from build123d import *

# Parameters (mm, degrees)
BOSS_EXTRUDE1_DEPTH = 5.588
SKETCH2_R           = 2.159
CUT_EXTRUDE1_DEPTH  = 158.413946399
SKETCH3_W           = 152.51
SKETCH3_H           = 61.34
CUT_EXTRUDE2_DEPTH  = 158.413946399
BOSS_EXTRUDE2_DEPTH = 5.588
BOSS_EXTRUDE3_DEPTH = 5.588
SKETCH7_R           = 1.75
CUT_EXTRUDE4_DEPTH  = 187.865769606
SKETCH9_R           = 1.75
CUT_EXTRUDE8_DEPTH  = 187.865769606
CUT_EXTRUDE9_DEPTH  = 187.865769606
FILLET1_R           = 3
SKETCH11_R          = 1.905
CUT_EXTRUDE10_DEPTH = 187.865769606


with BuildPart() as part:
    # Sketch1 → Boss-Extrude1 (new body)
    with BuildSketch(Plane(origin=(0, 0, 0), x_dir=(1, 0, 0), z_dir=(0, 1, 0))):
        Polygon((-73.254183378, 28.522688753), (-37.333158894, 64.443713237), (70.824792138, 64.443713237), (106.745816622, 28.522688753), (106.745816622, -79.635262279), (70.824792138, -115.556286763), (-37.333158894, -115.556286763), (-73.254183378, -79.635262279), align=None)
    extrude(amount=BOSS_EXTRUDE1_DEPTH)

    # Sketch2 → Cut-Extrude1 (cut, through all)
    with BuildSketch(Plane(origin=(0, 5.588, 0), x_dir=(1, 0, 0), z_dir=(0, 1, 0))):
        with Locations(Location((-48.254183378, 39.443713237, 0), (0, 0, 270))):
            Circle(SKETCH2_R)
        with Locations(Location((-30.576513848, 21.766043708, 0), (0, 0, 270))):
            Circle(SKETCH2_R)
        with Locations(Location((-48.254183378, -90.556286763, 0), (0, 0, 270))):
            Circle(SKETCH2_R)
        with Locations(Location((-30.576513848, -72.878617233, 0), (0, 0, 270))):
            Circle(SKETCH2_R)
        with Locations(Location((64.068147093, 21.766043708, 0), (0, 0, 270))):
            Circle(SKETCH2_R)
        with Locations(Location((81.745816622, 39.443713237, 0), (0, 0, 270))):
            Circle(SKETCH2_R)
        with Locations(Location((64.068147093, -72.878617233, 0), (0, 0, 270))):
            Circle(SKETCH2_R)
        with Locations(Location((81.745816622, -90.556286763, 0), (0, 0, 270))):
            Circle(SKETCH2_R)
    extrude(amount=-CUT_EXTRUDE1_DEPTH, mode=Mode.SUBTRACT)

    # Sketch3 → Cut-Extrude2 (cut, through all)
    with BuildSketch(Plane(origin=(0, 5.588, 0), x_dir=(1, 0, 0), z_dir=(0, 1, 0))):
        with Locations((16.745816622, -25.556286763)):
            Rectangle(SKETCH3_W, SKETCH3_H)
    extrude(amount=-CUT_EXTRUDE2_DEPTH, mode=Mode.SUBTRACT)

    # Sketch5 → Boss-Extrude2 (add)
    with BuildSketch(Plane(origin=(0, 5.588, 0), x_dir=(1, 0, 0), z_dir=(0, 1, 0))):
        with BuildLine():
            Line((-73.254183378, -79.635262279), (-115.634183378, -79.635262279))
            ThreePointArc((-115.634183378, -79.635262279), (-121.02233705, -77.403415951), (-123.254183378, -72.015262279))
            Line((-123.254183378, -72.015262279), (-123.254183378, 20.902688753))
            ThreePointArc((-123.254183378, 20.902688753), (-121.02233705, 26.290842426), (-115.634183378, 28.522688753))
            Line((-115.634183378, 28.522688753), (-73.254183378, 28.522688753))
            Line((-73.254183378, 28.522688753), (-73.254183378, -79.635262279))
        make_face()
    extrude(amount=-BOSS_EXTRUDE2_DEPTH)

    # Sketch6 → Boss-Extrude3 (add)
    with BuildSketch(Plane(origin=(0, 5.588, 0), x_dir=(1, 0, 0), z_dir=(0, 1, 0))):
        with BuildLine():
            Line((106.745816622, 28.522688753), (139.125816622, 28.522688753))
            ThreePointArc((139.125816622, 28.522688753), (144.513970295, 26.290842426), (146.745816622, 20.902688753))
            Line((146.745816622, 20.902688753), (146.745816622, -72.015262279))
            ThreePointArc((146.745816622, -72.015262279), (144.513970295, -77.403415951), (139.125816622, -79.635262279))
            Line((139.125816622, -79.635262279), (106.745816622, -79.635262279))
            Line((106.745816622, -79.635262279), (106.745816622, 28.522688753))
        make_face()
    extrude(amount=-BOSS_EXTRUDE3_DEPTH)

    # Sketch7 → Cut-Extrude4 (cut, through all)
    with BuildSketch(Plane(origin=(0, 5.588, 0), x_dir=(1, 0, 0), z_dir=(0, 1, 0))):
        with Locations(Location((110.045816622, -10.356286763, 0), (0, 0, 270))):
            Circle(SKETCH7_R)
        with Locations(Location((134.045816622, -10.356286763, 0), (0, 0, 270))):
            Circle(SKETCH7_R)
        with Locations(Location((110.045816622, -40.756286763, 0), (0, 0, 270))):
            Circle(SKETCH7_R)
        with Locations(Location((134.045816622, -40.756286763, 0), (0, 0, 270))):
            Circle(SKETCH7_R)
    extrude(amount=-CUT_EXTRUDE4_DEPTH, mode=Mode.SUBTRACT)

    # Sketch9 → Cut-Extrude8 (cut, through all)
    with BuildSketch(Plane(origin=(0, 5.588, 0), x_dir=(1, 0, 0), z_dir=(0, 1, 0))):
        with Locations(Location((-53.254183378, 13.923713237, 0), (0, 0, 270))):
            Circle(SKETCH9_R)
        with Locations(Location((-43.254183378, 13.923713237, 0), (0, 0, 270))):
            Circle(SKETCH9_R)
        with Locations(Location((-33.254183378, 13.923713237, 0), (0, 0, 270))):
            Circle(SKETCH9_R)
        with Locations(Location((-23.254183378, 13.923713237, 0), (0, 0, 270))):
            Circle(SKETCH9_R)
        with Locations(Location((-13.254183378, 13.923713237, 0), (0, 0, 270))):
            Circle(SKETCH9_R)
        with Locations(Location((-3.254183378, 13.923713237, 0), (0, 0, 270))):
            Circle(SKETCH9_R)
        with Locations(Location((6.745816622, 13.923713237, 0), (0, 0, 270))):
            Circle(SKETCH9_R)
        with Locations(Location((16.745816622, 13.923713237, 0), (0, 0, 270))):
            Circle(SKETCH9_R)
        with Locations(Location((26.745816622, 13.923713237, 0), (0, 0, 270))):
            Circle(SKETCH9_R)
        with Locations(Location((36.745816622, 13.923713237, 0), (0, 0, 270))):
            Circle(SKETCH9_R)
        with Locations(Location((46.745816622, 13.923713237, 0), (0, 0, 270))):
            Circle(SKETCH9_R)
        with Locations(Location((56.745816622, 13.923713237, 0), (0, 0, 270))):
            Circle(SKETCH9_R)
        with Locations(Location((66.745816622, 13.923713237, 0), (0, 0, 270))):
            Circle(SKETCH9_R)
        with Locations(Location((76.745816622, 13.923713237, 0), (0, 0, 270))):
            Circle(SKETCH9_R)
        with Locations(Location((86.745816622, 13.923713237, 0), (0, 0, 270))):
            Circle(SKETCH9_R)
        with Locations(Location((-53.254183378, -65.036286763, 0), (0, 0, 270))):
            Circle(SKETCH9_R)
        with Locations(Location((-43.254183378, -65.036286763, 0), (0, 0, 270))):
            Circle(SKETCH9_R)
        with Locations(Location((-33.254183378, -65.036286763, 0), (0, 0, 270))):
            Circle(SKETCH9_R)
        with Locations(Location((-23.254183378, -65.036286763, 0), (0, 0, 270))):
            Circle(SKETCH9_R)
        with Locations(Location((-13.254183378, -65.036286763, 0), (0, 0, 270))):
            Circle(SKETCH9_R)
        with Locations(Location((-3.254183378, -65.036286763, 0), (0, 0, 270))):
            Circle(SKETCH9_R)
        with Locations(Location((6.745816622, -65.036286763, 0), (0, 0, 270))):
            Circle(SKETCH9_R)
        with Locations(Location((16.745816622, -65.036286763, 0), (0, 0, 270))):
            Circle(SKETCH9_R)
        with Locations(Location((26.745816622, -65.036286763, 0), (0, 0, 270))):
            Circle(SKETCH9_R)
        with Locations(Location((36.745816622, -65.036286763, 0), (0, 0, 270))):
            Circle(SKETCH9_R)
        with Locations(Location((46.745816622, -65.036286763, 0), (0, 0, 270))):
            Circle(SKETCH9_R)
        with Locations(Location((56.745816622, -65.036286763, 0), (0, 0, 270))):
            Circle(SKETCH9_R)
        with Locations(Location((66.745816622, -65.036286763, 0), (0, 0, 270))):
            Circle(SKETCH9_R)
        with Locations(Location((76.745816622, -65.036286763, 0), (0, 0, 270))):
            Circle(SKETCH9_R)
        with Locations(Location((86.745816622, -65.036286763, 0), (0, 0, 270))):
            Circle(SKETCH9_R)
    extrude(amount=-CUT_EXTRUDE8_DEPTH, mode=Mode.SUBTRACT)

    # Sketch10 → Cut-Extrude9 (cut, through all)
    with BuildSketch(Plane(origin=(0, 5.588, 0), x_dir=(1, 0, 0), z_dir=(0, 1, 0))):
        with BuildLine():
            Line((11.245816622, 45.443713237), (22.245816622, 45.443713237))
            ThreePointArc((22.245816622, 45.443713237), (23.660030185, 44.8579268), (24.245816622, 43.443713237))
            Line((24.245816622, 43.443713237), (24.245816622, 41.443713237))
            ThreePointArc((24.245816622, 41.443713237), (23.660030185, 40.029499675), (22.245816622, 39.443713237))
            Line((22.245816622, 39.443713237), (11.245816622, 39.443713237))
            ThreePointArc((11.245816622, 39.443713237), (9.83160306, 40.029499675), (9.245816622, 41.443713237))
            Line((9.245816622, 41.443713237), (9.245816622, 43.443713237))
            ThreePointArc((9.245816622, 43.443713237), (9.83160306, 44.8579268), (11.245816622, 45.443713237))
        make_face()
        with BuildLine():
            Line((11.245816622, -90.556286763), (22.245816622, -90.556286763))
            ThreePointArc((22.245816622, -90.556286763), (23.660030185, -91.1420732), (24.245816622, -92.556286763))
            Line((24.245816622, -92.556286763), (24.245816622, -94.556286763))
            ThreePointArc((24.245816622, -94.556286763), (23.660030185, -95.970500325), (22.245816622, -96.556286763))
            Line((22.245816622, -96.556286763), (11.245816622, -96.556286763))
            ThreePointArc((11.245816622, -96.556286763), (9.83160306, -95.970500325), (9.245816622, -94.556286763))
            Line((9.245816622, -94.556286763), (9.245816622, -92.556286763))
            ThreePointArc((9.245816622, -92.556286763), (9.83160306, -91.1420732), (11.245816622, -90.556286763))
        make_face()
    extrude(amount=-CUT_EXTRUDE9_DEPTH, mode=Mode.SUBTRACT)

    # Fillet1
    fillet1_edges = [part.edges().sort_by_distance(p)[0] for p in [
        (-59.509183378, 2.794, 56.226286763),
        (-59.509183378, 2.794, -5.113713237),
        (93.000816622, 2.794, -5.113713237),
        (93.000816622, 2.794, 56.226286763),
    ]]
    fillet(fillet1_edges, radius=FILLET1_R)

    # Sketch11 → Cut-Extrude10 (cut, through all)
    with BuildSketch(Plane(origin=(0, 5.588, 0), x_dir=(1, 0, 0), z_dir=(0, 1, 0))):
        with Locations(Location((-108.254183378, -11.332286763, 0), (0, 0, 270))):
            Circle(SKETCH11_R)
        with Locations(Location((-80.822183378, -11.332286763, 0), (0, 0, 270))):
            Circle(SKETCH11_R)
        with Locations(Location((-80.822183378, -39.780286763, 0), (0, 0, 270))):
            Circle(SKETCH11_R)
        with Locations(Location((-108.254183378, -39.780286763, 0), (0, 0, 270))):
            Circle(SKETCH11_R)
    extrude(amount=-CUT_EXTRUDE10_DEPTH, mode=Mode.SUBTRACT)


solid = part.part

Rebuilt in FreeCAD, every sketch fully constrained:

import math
import FreeCAD as App
import Part
import Sketcher

V = App.Vector
Q = App.Units.Quantity


def edges_at(feature, points):
    """Names of the edges that pass closest to the given points."""
    edges = feature.Shape.Edges
    near = lambda p: min(range(len(edges)), key=lambda i: edges[i].distToShape(Part.Vertex(*p))[0])
    return sorted({f"Edge{near(p) + 1}" for p in points})

doc = App.newDocument("Part")
body = doc.addObject("PartDesign::Body", "Body")

# Sketch on XZ plane
sketch1 = body.newObject("Sketcher::SketchObject", "Sketch")
sketch1.AttachmentSupport = (doc.getObject("XZ_Plane"), [""])
sketch1.MapMode = "FlatFace"
sketch1.addGeometry([
    Part.LineSegment(V(-37, -64, 0), V(-73, -29, 0)),  # 0
    Part.LineSegment(V(-73, -29, 0), V(-73, 80, 0)),  # 1
    Part.LineSegment(V(-73, 80, 0), V(-37, 116, 0)),  # 2
    Part.LineSegment(V(-37, 116, 0), V(71, 116, 0)),  # 3
    Part.LineSegment(V(71, 116, 0), V(107, 80, 0)),  # 4
    Part.LineSegment(V(107, 80, 0), V(107, -29, 0)),  # 5
    Part.LineSegment(V(107, -29, 0), V(71, -64, 0)),  # 6
    Part.LineSegment(V(71, -64, 0), V(-37, -64, 0)),  # 7
], False)
sketch1.addConstraint([
    Sketcher.Constraint("Coincident", 0, 2, 1, 1),
    Sketcher.Constraint("Coincident", 1, 2, 2, 1),
    Sketcher.Constraint("Coincident", 2, 2, 3, 1),
    Sketcher.Constraint("Coincident", 3, 2, 4, 1),
    Sketcher.Constraint("Coincident", 4, 2, 5, 1),
    Sketcher.Constraint("Coincident", 5, 2, 6, 1),
    Sketcher.Constraint("Coincident", 6, 2, 7, 1),
    Sketcher.Constraint("Coincident", 7, 2, 0, 1),
    Sketcher.Constraint("Vertical", 1),
    Sketcher.Constraint("Horizontal", 3),
    Sketcher.Constraint("Vertical", 5),
    Sketcher.Constraint("Horizontal", 7),
    Sketcher.Constraint("Perpendicular", 0, 2),
    Sketcher.Constraint("Perpendicular", 2, 4),
    Sketcher.Constraint("Perpendicular", 4, 6),
    Sketcher.Constraint("Horizontal", 1, 2, 4, 2),
    Sketcher.Constraint("Horizontal", 0, 2, 5, 2),
    Sketcher.Constraint("Vertical", 3, 2, 6, 2),
    Sketcher.Constraint("Vertical", 2, 2, 7, 2),
    Sketcher.Constraint("Equal", 7, 1),
    Sketcher.Constraint("DistanceX", 1, 2, 4, 2, Q("180 mm")),
    Sketcher.Constraint("Distance", 0, Q("50.8 mm")),
    Sketcher.Constraint("DistanceY", 0, 2, -1, 1, Q("28.522689 mm")),
    Sketcher.Constraint("DistanceX", 2, 2, -1, 1, Q("37.333159 mm")),
])
pad1 = body.newObject("PartDesign::Pad", "Pad")
pad1.Profile = sketch1
pad1.Length = 5.588
pad1.Reversed = True

# Sketch on XZ plane
sketch2 = body.newObject("Sketcher::SketchObject", "Sketch001")
sketch2.AttachmentSupport = (doc.getObject("XZ_Plane"), [""])
sketch2.MapMode = "FlatFace"
sketch2.AttachmentOffset = App.Placement(V(0, 0, -5.588), App.Rotation())
sketch2.addGeometry([
    Part.Circle(V(-48.3, -39.4, 0), V(0, 0, 1), 2.2),  # 0
    Part.Circle(V(-30.6, -21.8, 0), V(0, 0, 1), 2.2),  # 1
    Part.Circle(V(-48.3, 90.6, 0), V(0, 0, 1), 2.2),  # 2
    Part.Circle(V(-30.6, 72.9, 0), V(0, 0, 1), 2.2),  # 3
    Part.Circle(V(64.1, -21.8, 0), V(0, 0, 1), 2.2),  # 4
    Part.Circle(V(81.7, -39.4, 0), V(0, 0, 1), 2.2),  # 5
    Part.Circle(V(64.1, 72.9, 0), V(0, 0, 1), 2.2),  # 6
    Part.Circle(V(81.7, 90.6, 0), V(0, 0, 1), 2.2),  # 7
], False)
sketch2.addConstraint([
    Sketcher.Constraint("Equal", 0, 1),
    Sketcher.Constraint("Equal", 1, 2),
    Sketcher.Constraint("Equal", 2, 3),
    Sketcher.Constraint("Equal", 3, 4),
    Sketcher.Constraint("Equal", 4, 5),
    Sketcher.Constraint("Equal", 5, 6),
    Sketcher.Constraint("Equal", 6, 7),
    Sketcher.Constraint("Horizontal", 1, 3, 4, 3),
    Sketcher.Constraint("Horizontal", 0, 3, 5, 3),
    Sketcher.Constraint("Horizontal", 3, 3, 6, 3),
    Sketcher.Constraint("Horizontal", 2, 3, 7, 3),
    Sketcher.Constraint("Vertical", 0, 3, 2, 3),
    Sketcher.Constraint("Vertical", 1, 3, 3, 3),
    Sketcher.Constraint("Vertical", 4, 3, 6, 3),
    Sketcher.Constraint("Vertical", 5, 3, 7, 3),
    Sketcher.Constraint("Diameter", 0, Q("4.318 mm")),
    Sketcher.Constraint("DistanceY", 0, 3, 2, 3, Q("130 mm")),
    Sketcher.Constraint("DistanceX", 0, 3, 5, 3, Q("130 mm")),
    Sketcher.Constraint("DistanceX", 0, 3, 1, 3, Q("17.67767 mm")),
    Sketcher.Constraint("DistanceY", 0, 3, 1, 3, Q("17.67767 mm")),
    Sketcher.Constraint("DistanceY", 3, 3, 2, 3, Q("17.67767 mm")),
    Sketcher.Constraint("DistanceX", 1, 3, 4, 3, Q("94.644661 mm")),
    Sketcher.Constraint("DistanceX", 0, 3, -1, 1, Q("48.254183 mm")),
    Sketcher.Constraint("DistanceY", 0, 3, -1, 1, Q("39.443713 mm")),
])
pocket1 = body.newObject("PartDesign::Pocket", "Pocket")
pocket1.Profile = sketch2
pocket1.Type = "ThroughAll"
pocket1.Reversed = True

# Sketch on XZ plane
sketch3 = body.newObject("Sketcher::SketchObject", "Sketch002")
sketch3.AttachmentSupport = (doc.getObject("XZ_Plane"), [""])
sketch3.MapMode = "FlatFace"
sketch3.AttachmentOffset = App.Placement(V(0, 0, -5.588), App.Rotation())
sketch3.addGeometry([
    Part.LineSegment(V(-60, -5, 0), V(-60, 56, 0)),
    Part.LineSegment(V(-60, 56, 0), V(93, 56, 0)),
    Part.LineSegment(V(93, 56, 0), V(93, -5, 0)),
    Part.LineSegment(V(93, -5, 0), V(-60, -5, 0)),
], False)
sketch3.addConstraint([
    Sketcher.Constraint("Coincident", 0, 2, 1, 1),
    Sketcher.Constraint("Coincident", 1, 2, 2, 1),
    Sketcher.Constraint("Coincident", 2, 2, 3, 1),
    Sketcher.Constraint("Coincident", 3, 2, 0, 1),
    Sketcher.Constraint("Vertical", 0),
    Sketcher.Constraint("Horizontal", 1),
    Sketcher.Constraint("Vertical", 2),
    Sketcher.Constraint("Horizontal", 3),
    Sketcher.Constraint("DistanceX", 1, 1, 1, 2, Q("152.51 mm")),
    Sketcher.Constraint("DistanceY", 0, 1, 0, 2, Q("61.34 mm")),
    Sketcher.Constraint("DistanceX", 0, 2, -1, 1, Q("59.509183 mm")),
    Sketcher.Constraint("DistanceY", -1, 1, 0, 2, Q("56.226287 mm")),
])
pocket2 = body.newObject("PartDesign::Pocket", "Pocket001")
pocket2.Profile = sketch3
pocket2.Type = "ThroughAll"
pocket2.Reversed = True

# Sketch on XZ plane
sketch4 = body.newObject("Sketcher::SketchObject", "Sketch003")
sketch4.AttachmentSupport = (doc.getObject("XZ_Plane"), [""])
sketch4.MapMode = "FlatFace"
sketch4.AttachmentOffset = App.Placement(V(0, 0, -5.588), App.Rotation())
sketch4.addGeometry([
    Part.LineSegment(V(-116, 80, 0), V(-73, 80, 0)),  # 0
    Part.LineSegment(V(-73, 80, 0), V(-73, -29, 0)),  # 1
    Part.LineSegment(V(-73, -29, 0), V(-116, -29, 0)),  # 2
    Part.ArcOfCircle(Part.Circle(V(-116, -21, 0), V(0, 0, 1), 8), math.radians(180), math.radians(270)),  # 3
    Part.LineSegment(V(-123, -21, 0), V(-123, 72, 0)),  # 4
    Part.ArcOfCircle(Part.Circle(V(-116, 72, 0), V(0, 0, 1), 8), math.radians(90), math.radians(180)),  # 5
], False)
sketch4.addConstraint([
    Sketcher.Constraint("Coincident", 0, 2, 1, 1),
    Sketcher.Constraint("Coincident", 1, 2, 2, 1),
    Sketcher.Constraint("Tangent", 2, 2, 3, 2),
    Sketcher.Constraint("Tangent", 3, 1, 4, 1),
    Sketcher.Constraint("Tangent", 4, 2, 5, 2),
    Sketcher.Constraint("Tangent", 5, 1, 0, 1),
    Sketcher.Constraint("Horizontal", 0),
    Sketcher.Constraint("Vertical", 1),
    Sketcher.Constraint("Horizontal", 2),
    Sketcher.Constraint("Vertical", 4),
    Sketcher.Constraint("Equal", 3, 5),
    Sketcher.Constraint("Radius", 3, Q("7.62 mm")),
    Sketcher.Constraint("DistanceX", 3, 1, 1, 2, Q("50 mm")),
    Sketcher.Constraint("DistanceY", 1, 2, 1, 1, Q("108.157951 mm")),
    Sketcher.Constraint("DistanceY", 3, 3, -1, 1, Q("20.902689 mm")),
    Sketcher.Constraint("DistanceX", 3, 3, -1, 1, Q("115.634183 mm")),
])
pad2 = body.newObject("PartDesign::Pad", "Pad001")
pad2.Profile = sketch4
pad2.Length = 5.588

# Sketch on XZ plane
sketch5 = body.newObject("Sketcher::SketchObject", "Sketch004")
sketch5.AttachmentSupport = (doc.getObject("XZ_Plane"), [""])
sketch5.MapMode = "FlatFace"
sketch5.AttachmentOffset = App.Placement(V(0, 0, -5.588), App.Rotation())
sketch5.addGeometry([
    Part.LineSegment(V(139, -29, 0), V(107, -29, 0)),  # 0
    Part.LineSegment(V(107, -29, 0), V(107, 80, 0)),  # 1
    Part.LineSegment(V(107, 80, 0), V(139, 80, 0)),  # 2
    Part.ArcOfCircle(Part.Circle(V(139, 72, 0), V(0, 0, 1), 8), math.radians(0), math.radians(90)),  # 3
    Part.LineSegment(V(147, 72, 0), V(147, -21, 0)),  # 4
    Part.ArcOfCircle(Part.Circle(V(139, -21, 0), V(0, 0, 1), 8), math.radians(-90), math.radians(0)),  # 5
], False)
sketch5.addConstraint([
    Sketcher.Constraint("Coincident", 0, 2, 1, 1),
    Sketcher.Constraint("Coincident", 1, 2, 2, 1),
    Sketcher.Constraint("Tangent", 2, 2, 3, 2),
    Sketcher.Constraint("Tangent", 3, 1, 4, 1),
    Sketcher.Constraint("Tangent", 4, 2, 5, 2),
    Sketcher.Constraint("Tangent", 5, 1, 0, 1),
    Sketcher.Constraint("Horizontal", 0),
    Sketcher.Constraint("Vertical", 1),
    Sketcher.Constraint("Horizontal", 2),
    Sketcher.Constraint("Vertical", 4),
    Sketcher.Constraint("Equal", 3, 5),
    Sketcher.Constraint("Radius", 3, Q("7.62 mm")),
    Sketcher.Constraint("DistanceX", 1, 2, 3, 1, Q("40 mm")),
    Sketcher.Constraint("DistanceY", 1, 1, 1, 2, Q("108.157951 mm")),
    Sketcher.Constraint("DistanceY", 5, 3, -1, 1, Q("20.902689 mm")),
    Sketcher.Constraint("DistanceX", -1, 1, 3, 3, Q("139.125817 mm")),
])
pad3 = body.newObject("PartDesign::Pad", "Pad002")
pad3.Profile = sketch5
pad3.Length = 5.588

# Sketch on XZ plane
sketch6 = body.newObject("Sketcher::SketchObject", "Sketch005")
sketch6.AttachmentSupport = (doc.getObject("XZ_Plane"), [""])
sketch6.MapMode = "FlatFace"
sketch6.AttachmentOffset = App.Placement(V(0, 0, -5.588), App.Rotation())
sketch6.addGeometry([
    Part.Circle(V(110, 10.4, 0), V(0, 0, 1), 1.8),
    Part.Circle(V(134, 10.4, 0), V(0, 0, 1), 1.8),
    Part.Circle(V(110, 40.8, 0), V(0, 0, 1), 1.8),
    Part.Circle(V(134, 40.8, 0), V(0, 0, 1), 1.8),
], False)
sketch6.addConstraint([
    Sketcher.Constraint("Equal", 0, 1),
    Sketcher.Constraint("Equal", 1, 2),
    Sketcher.Constraint("Equal", 2, 3),
    Sketcher.Constraint("Horizontal", 0, 3, 1, 3),
    Sketcher.Constraint("Horizontal", 2, 3, 3, 3),
    Sketcher.Constraint("Vertical", 0, 3, 2, 3),
    Sketcher.Constraint("Vertical", 1, 3, 3, 3),
    Sketcher.Constraint("Diameter", 0, Q("3.5 mm")),
    Sketcher.Constraint("DistanceX", 0, 3, 1, 3, Q("24 mm")),
    Sketcher.Constraint("DistanceY", 0, 3, 2, 3, Q("30.4 mm")),
    Sketcher.Constraint("DistanceX", -1, 1, 0, 3, Q("110.045817 mm")),
    Sketcher.Constraint("DistanceY", -1, 1, 0, 3, Q("10.356287 mm")),
])
pocket3 = body.newObject("PartDesign::Pocket", "Pocket002")
pocket3.Profile = sketch6
pocket3.Type = "ThroughAll"
pocket3.Reversed = True

# Sketch on XZ plane
sketch7 = body.newObject("Sketcher::SketchObject", "Sketch006")
sketch7.AttachmentSupport = (doc.getObject("XZ_Plane"), [""])
sketch7.MapMode = "FlatFace"
sketch7.AttachmentOffset = App.Placement(V(0, 0, -5.588), App.Rotation())
sketch7.addGeometry([
    Part.Circle(V(-53.3, -13.9, 0), V(0, 0, 1), 1.8),  # 0
    Part.Circle(V(-43.3, -13.9, 0), V(0, 0, 1), 1.8),  # 1
    Part.Circle(V(-33.3, -13.9, 0), V(0, 0, 1), 1.8),  # 2
    Part.Circle(V(-23.3, -13.9, 0), V(0, 0, 1), 1.8),  # 3
    Part.Circle(V(-13.3, -13.9, 0), V(0, 0, 1), 1.8),  # 4
    Part.Circle(V(-3.3, -13.9, 0), V(0, 0, 1), 1.8),  # 5
    Part.Circle(V(6.7, -13.9, 0), V(0, 0, 1), 1.8),  # 6
    Part.Circle(V(16.7, -13.9, 0), V(0, 0, 1), 1.8),  # 7
    Part.Circle(V(26.7, -13.9, 0), V(0, 0, 1), 1.8),  # 8
    Part.Circle(V(36.7, -13.9, 0), V(0, 0, 1), 1.8),  # 9
    Part.Circle(V(46.7, -13.9, 0), V(0, 0, 1), 1.8),  # 10
    Part.Circle(V(56.7, -13.9, 0), V(0, 0, 1), 1.8),  # 11
    Part.Circle(V(66.7, -13.9, 0), V(0, 0, 1), 1.8),  # 12
    Part.Circle(V(76.7, -13.9, 0), V(0, 0, 1), 1.8),  # 13
    Part.Circle(V(86.7, -13.9, 0), V(0, 0, 1), 1.8),  # 14
    Part.Circle(V(-53.3, 65, 0), V(0, 0, 1), 1.8),  # 15
    Part.Circle(V(-43.3, 65, 0), V(0, 0, 1), 1.8),  # 16
    Part.Circle(V(-33.3, 65, 0), V(0, 0, 1), 1.8),  # 17
    Part.Circle(V(-23.3, 65, 0), V(0, 0, 1), 1.8),  # 18
    Part.Circle(V(-13.3, 65, 0), V(0, 0, 1), 1.8),  # 19
    Part.Circle(V(-3.3, 65, 0), V(0, 0, 1), 1.8),  # 20
    Part.Circle(V(6.7, 65, 0), V(0, 0, 1), 1.8),  # 21
    Part.Circle(V(16.7, 65, 0), V(0, 0, 1), 1.8),  # 22
    Part.Circle(V(26.7, 65, 0), V(0, 0, 1), 1.8),  # 23
    Part.Circle(V(36.7, 65, 0), V(0, 0, 1), 1.8),  # 24
    Part.Circle(V(46.7, 65, 0), V(0, 0, 1), 1.8),  # 25
    Part.Circle(V(56.7, 65, 0), V(0, 0, 1), 1.8),  # 26
    Part.Circle(V(66.7, 65, 0), V(0, 0, 1), 1.8),  # 27
    Part.Circle(V(76.7, 65, 0), V(0, 0, 1), 1.8),  # 28
    Part.Circle(V(86.7, 65, 0), V(0, 0, 1), 1.8),  # 29
], False)
sketch7.addConstraint([
    Sketcher.Constraint("Equal", 0, 1),
    Sketcher.Constraint("Equal", 1, 2),
    Sketcher.Constraint("Equal", 2, 3),
    Sketcher.Constraint("Equal", 3, 4),
    Sketcher.Constraint("Equal", 4, 5),
    Sketcher.Constraint("Equal", 5, 6),
    Sketcher.Constraint("Equal", 6, 7),
    Sketcher.Constraint("Equal", 7, 8),
    Sketcher.Constraint("Equal", 8, 9),
    Sketcher.Constraint("Equal", 9, 10),
    Sketcher.Constraint("Equal", 10, 11),
    Sketcher.Constraint("Equal", 11, 12),
    Sketcher.Constraint("Equal", 12, 13),
    Sketcher.Constraint("Equal", 13, 14),
    Sketcher.Constraint("Equal", 14, 15),
    Sketcher.Constraint("Equal", 15, 16),
    Sketcher.Constraint("Equal", 16, 17),
    Sketcher.Constraint("Equal", 17, 18),
    Sketcher.Constraint("Equal", 18, 19),
    Sketcher.Constraint("Equal", 19, 20),
    Sketcher.Constraint("Equal", 20, 21),
    Sketcher.Constraint("Equal", 21, 22),
    Sketcher.Constraint("Equal", 22, 23),
    Sketcher.Constraint("Equal", 23, 24),
    Sketcher.Constraint("Equal", 24, 25),
    Sketcher.Constraint("Equal", 25, 26),
    Sketcher.Constraint("Equal", 26, 27),
    Sketcher.Constraint("Equal", 27, 28),
    Sketcher.Constraint("Equal", 28, 29),
    Sketcher.Constraint("Horizontal", 0, 3, 1, 3),
    Sketcher.Constraint("Horizontal", 1, 3, 2, 3),
    Sketcher.Constraint("Horizontal", 2, 3, 3, 3),
    Sketcher.Constraint("Horizontal", 3, 3, 4, 3),
    Sketcher.Constraint("Horizontal", 4, 3, 5, 3),
    Sketcher.Constraint("Horizontal", 5, 3, 6, 3),
    Sketcher.Constraint("Horizontal", 6, 3, 7, 3),
    Sketcher.Constraint("Horizontal", 7, 3, 8, 3),
    Sketcher.Constraint("Horizontal", 8, 3, 9, 3),
    Sketcher.Constraint("Horizontal", 9, 3, 10, 3),
    Sketcher.Constraint("Horizontal", 10, 3, 11, 3),
    Sketcher.Constraint("Horizontal", 11, 3, 12, 3),
    Sketcher.Constraint("Horizontal", 12, 3, 13, 3),
    Sketcher.Constraint("Horizontal", 13, 3, 14, 3),
    Sketcher.Constraint("Horizontal", 15, 3, 16, 3),
    Sketcher.Constraint("Horizontal", 16, 3, 17, 3),
    Sketcher.Constraint("Horizontal", 17, 3, 18, 3),
    Sketcher.Constraint("Horizontal", 18, 3, 19, 3),
    Sketcher.Constraint("Horizontal", 19, 3, 20, 3),
    Sketcher.Constraint("Horizontal", 20, 3, 21, 3),
    Sketcher.Constraint("Horizontal", 21, 3, 22, 3),
    Sketcher.Constraint("Horizontal", 22, 3, 23, 3),
    Sketcher.Constraint("Horizontal", 23, 3, 24, 3),
    Sketcher.Constraint("Horizontal", 24, 3, 25, 3),
    Sketcher.Constraint("Horizontal", 25, 3, 26, 3),
    Sketcher.Constraint("Horizontal", 26, 3, 27, 3),
    Sketcher.Constraint("Horizontal", 27, 3, 28, 3),
    Sketcher.Constraint("Horizontal", 28, 3, 29, 3),
    Sketcher.Constraint("Vertical", 0, 3, 15, 3),
    Sketcher.Constraint("Vertical", 1, 3, 16, 3),
    Sketcher.Constraint("Vertical", 2, 3, 17, 3),
    Sketcher.Constraint("Vertical", 3, 3, 18, 3),
    Sketcher.Constraint("Vertical", 4, 3, 19, 3),
    Sketcher.Constraint("Vertical", 5, 3, 20, 3),
    Sketcher.Constraint("Vertical", 6, 3, 21, 3),
    Sketcher.Constraint("Vertical", 7, 3, 22, 3),
    Sketcher.Constraint("Vertical", 8, 3, 23, 3),
    Sketcher.Constraint("Vertical", 9, 3, 24, 3),
    Sketcher.Constraint("Vertical", 10, 3, 25, 3),
    Sketcher.Constraint("Vertical", 11, 3, 26, 3),
    Sketcher.Constraint("Vertical", 12, 3, 27, 3),
    Sketcher.Constraint("Vertical", 13, 3, 28, 3),
    Sketcher.Constraint("Vertical", 14, 3, 29, 3),
    Sketcher.Constraint("Diameter", 0, Q("3.5 mm")),
    Sketcher.Constraint("DistanceX", 0, 3, 1, 3, Q("10 mm")),
    Sketcher.Constraint("DistanceX", 1, 3, 2, 3, Q("10 mm")),
    Sketcher.Constraint("DistanceX", 2, 3, 3, 3, Q("10 mm")),
    Sketcher.Constraint("DistanceX", 3, 3, 4, 3, Q("10 mm")),
    Sketcher.Constraint("DistanceX", 4, 3, 5, 3, Q("10 mm")),
    Sketcher.Constraint("DistanceX", 5, 3, 6, 3, Q("10 mm")),
    Sketcher.Constraint("DistanceX", 6, 3, 7, 3, Q("10 mm")),
    Sketcher.Constraint("DistanceX", 7, 3, 8, 3, Q("10 mm")),
    Sketcher.Constraint("DistanceX", 8, 3, 9, 3, Q("10 mm")),
    Sketcher.Constraint("DistanceX", 9, 3, 10, 3, Q("10 mm")),
    Sketcher.Constraint("DistanceX", 10, 3, 11, 3, Q("10 mm")),
    Sketcher.Constraint("DistanceX", 11, 3, 12, 3, Q("10 mm")),
    Sketcher.Constraint("DistanceX", 12, 3, 13, 3, Q("10 mm")),
    Sketcher.Constraint("DistanceX", 13, 3, 14, 3, Q("10 mm")),
    Sketcher.Constraint("DistanceY", 0, 3, 15, 3, Q("78.96 mm")),
    Sketcher.Constraint("DistanceX", 0, 3, -1, 1, Q("53.254183 mm")),
    Sketcher.Constraint("DistanceY", 0, 3, -1, 1, Q("13.923713 mm")),
])
pocket4 = body.newObject("PartDesign::Pocket", "Pocket003")
pocket4.Profile = sketch7
pocket4.Type = "ThroughAll"
pocket4.Reversed = True

# Sketch on XZ plane
sketch8 = body.newObject("Sketcher::SketchObject", "Sketch007")
sketch8.AttachmentSupport = (doc.getObject("XZ_Plane"), [""])
sketch8.MapMode = "FlatFace"
sketch8.AttachmentOffset = App.Placement(V(0, 0, -5.588), App.Rotation())
sketch8.addGeometry([
    Part.LineSegment(V(22.2, -45.4, 0), V(11.2, -45.4, 0)),  # 0
    Part.ArcOfCircle(Part.Circle(V(11.2, -43.4, 0), V(0, 0, 1), 2), math.radians(180), math.radians(270)),  # 1
    Part.LineSegment(V(9.2, -43.4, 0), V(9.2, -41.4, 0)),  # 2
    Part.ArcOfCircle(Part.Circle(V(11.2, -41.4, 0), V(0, 0, 1), 2), math.radians(90), math.radians(180)),  # 3
    Part.LineSegment(V(11.2, -39.4, 0), V(22.2, -39.4, 0)),  # 4
    Part.ArcOfCircle(Part.Circle(V(22.2, -41.4, 0), V(0, 0, 1), 2), math.radians(0), math.radians(90)),  # 5
    Part.LineSegment(V(24.2, -41.4, 0), V(24.2, -43.4, 0)),  # 6
    Part.ArcOfCircle(Part.Circle(V(22.2, -43.4, 0), V(0, 0, 1), 2), math.radians(-90), math.radians(0)),  # 7
    Part.LineSegment(V(22.2, 90.6, 0), V(11.2, 90.6, 0)),  # 8
    Part.ArcOfCircle(Part.Circle(V(11.2, 92.6, 0), V(0, 0, 1), 2), math.radians(180), math.radians(270)),  # 9
    Part.LineSegment(V(9.2, 92.6, 0), V(9.2, 94.6, 0)),  # 10
    Part.ArcOfCircle(Part.Circle(V(11.2, 94.6, 0), V(0, 0, 1), 2), math.radians(90), math.radians(180)),  # 11
    Part.LineSegment(V(11.2, 96.6, 0), V(22.2, 96.6, 0)),  # 12
    Part.ArcOfCircle(Part.Circle(V(22.2, 94.6, 0), V(0, 0, 1), 2), math.radians(0), math.radians(90)),  # 13
    Part.LineSegment(V(24.2, 94.6, 0), V(24.2, 92.6, 0)),  # 14
    Part.ArcOfCircle(Part.Circle(V(22.2, 92.6, 0), V(0, 0, 1), 2), math.radians(-90), math.radians(0)),  # 15
], False)
sketch8.addConstraint([
    Sketcher.Constraint("Tangent", 0, 2, 1, 2),
    Sketcher.Constraint("Tangent", 1, 1, 2, 1),
    Sketcher.Constraint("Tangent", 2, 2, 3, 2),
    Sketcher.Constraint("Tangent", 3, 1, 4, 1),
    Sketcher.Constraint("Tangent", 4, 2, 5, 2),
    Sketcher.Constraint("Tangent", 5, 1, 6, 1),
    Sketcher.Constraint("Tangent", 6, 2, 7, 2),
    Sketcher.Constraint("Tangent", 7, 1, 0, 1),
    Sketcher.Constraint("Tangent", 8, 2, 9, 2),
    Sketcher.Constraint("Tangent", 9, 1, 10, 1),
    Sketcher.Constraint("Tangent", 10, 2, 11, 2),
    Sketcher.Constraint("Tangent", 11, 1, 12, 1),
    Sketcher.Constraint("Tangent", 12, 2, 13, 2),
    Sketcher.Constraint("Tangent", 13, 1, 14, 1),
    Sketcher.Constraint("Tangent", 14, 2, 15, 2),
    Sketcher.Constraint("Tangent", 15, 1, 8, 1),
    Sketcher.Constraint("Horizontal", 0),
    Sketcher.Constraint("Vertical", 2),
    Sketcher.Constraint("Horizontal", 4),
    Sketcher.Constraint("Vertical", 6),
    Sketcher.Constraint("Horizontal", 8),
    Sketcher.Constraint("Vertical", 10),
    Sketcher.Constraint("Horizontal", 12),
    Sketcher.Constraint("Vertical", 14),
    Sketcher.Constraint("Equal", 1, 3),
    Sketcher.Constraint("Equal", 3, 5),
    Sketcher.Constraint("Equal", 5, 7),
    Sketcher.Constraint("Equal", 7, 9),
    Sketcher.Constraint("Equal", 9, 11),
    Sketcher.Constraint("Equal", 11, 13),
    Sketcher.Constraint("Equal", 13, 15),
    Sketcher.Constraint("Vertical", 3, 3, 9, 3),
    Sketcher.Constraint("Vertical", 7, 3, 13, 3),
    Sketcher.Constraint("Equal", 6, 10),
    Sketcher.Constraint("Radius", 1, Q("2 mm")),
    Sketcher.Constraint("DistanceX", 0, 2, 0, 1, Q("11 mm")),
    Sketcher.Constraint("DistanceY", 2, 1, 2, 2, Q("2 mm")),
    Sketcher.Constraint("DistanceY", 3, 3, 9, 3, Q("134 mm")),
    Sketcher.Constraint("DistanceX", -1, 1, 1, 3, Q("11.245817 mm")),
    Sketcher.Constraint("DistanceY", 1, 3, -1, 1, Q("43.443713 mm")),
])
pocket5 = body.newObject("PartDesign::Pocket", "Pocket004")
pocket5.Profile = sketch8
pocket5.Type = "ThroughAll"
pocket5.Reversed = True
doc.recompute()

fillet = body.newObject("PartDesign::Fillet", "Fillet")
fillet.Base = (pocket5, edges_at(pocket5, [
    (-59.509, 2.794, 56.226),
    (-59.509, 2.794, -5.114),
    (93.001, 2.794, -5.114),
    (93.001, 2.794, 56.226),
]))
fillet.Radius = 3

# Sketch on XZ plane
sketch9 = body.newObject("Sketcher::SketchObject", "Sketch008")
sketch9.AttachmentSupport = (doc.getObject("XZ_Plane"), [""])
sketch9.MapMode = "FlatFace"
sketch9.AttachmentOffset = App.Placement(V(0, 0, -5.588), App.Rotation())
sketch9.addGeometry([
    Part.Circle(V(-108.3, 11.3, 0), V(0, 0, 1), 1.9),
    Part.Circle(V(-80.8, 11.3, 0), V(0, 0, 1), 1.9),
    Part.Circle(V(-80.8, 39.8, 0), V(0, 0, 1), 1.9),
    Part.Circle(V(-108.3, 39.8, 0), V(0, 0, 1), 1.9),
], False)
sketch9.addConstraint([
    Sketcher.Constraint("Equal", 0, 1),
    Sketcher.Constraint("Equal", 1, 2),
    Sketcher.Constraint("Equal", 2, 3),
    Sketcher.Constraint("Horizontal", 0, 3, 1, 3),
    Sketcher.Constraint("Horizontal", 2, 3, 3, 3),
    Sketcher.Constraint("Vertical", 1, 3, 2, 3),
    Sketcher.Constraint("Vertical", 0, 3, 3, 3),
    Sketcher.Constraint("Diameter", 0, Q("3.81 mm")),
    Sketcher.Constraint("DistanceX", 0, 3, 1, 3, Q("27.432 mm")),
    Sketcher.Constraint("DistanceY", 1, 3, 2, 3, Q("28.448 mm")),
    Sketcher.Constraint("DistanceX", 0, 3, -1, 1, Q("108.254183 mm")),
    Sketcher.Constraint("DistanceY", -1, 1, 0, 3, Q("11.332287 mm")),
])
pocket6 = body.newObject("PartDesign::Pocket", "Pocket005")
pocket6.Profile = sketch9
pocket6.Type = "ThroughAll"
pocket6.Reversed = True

doc.recompute()
